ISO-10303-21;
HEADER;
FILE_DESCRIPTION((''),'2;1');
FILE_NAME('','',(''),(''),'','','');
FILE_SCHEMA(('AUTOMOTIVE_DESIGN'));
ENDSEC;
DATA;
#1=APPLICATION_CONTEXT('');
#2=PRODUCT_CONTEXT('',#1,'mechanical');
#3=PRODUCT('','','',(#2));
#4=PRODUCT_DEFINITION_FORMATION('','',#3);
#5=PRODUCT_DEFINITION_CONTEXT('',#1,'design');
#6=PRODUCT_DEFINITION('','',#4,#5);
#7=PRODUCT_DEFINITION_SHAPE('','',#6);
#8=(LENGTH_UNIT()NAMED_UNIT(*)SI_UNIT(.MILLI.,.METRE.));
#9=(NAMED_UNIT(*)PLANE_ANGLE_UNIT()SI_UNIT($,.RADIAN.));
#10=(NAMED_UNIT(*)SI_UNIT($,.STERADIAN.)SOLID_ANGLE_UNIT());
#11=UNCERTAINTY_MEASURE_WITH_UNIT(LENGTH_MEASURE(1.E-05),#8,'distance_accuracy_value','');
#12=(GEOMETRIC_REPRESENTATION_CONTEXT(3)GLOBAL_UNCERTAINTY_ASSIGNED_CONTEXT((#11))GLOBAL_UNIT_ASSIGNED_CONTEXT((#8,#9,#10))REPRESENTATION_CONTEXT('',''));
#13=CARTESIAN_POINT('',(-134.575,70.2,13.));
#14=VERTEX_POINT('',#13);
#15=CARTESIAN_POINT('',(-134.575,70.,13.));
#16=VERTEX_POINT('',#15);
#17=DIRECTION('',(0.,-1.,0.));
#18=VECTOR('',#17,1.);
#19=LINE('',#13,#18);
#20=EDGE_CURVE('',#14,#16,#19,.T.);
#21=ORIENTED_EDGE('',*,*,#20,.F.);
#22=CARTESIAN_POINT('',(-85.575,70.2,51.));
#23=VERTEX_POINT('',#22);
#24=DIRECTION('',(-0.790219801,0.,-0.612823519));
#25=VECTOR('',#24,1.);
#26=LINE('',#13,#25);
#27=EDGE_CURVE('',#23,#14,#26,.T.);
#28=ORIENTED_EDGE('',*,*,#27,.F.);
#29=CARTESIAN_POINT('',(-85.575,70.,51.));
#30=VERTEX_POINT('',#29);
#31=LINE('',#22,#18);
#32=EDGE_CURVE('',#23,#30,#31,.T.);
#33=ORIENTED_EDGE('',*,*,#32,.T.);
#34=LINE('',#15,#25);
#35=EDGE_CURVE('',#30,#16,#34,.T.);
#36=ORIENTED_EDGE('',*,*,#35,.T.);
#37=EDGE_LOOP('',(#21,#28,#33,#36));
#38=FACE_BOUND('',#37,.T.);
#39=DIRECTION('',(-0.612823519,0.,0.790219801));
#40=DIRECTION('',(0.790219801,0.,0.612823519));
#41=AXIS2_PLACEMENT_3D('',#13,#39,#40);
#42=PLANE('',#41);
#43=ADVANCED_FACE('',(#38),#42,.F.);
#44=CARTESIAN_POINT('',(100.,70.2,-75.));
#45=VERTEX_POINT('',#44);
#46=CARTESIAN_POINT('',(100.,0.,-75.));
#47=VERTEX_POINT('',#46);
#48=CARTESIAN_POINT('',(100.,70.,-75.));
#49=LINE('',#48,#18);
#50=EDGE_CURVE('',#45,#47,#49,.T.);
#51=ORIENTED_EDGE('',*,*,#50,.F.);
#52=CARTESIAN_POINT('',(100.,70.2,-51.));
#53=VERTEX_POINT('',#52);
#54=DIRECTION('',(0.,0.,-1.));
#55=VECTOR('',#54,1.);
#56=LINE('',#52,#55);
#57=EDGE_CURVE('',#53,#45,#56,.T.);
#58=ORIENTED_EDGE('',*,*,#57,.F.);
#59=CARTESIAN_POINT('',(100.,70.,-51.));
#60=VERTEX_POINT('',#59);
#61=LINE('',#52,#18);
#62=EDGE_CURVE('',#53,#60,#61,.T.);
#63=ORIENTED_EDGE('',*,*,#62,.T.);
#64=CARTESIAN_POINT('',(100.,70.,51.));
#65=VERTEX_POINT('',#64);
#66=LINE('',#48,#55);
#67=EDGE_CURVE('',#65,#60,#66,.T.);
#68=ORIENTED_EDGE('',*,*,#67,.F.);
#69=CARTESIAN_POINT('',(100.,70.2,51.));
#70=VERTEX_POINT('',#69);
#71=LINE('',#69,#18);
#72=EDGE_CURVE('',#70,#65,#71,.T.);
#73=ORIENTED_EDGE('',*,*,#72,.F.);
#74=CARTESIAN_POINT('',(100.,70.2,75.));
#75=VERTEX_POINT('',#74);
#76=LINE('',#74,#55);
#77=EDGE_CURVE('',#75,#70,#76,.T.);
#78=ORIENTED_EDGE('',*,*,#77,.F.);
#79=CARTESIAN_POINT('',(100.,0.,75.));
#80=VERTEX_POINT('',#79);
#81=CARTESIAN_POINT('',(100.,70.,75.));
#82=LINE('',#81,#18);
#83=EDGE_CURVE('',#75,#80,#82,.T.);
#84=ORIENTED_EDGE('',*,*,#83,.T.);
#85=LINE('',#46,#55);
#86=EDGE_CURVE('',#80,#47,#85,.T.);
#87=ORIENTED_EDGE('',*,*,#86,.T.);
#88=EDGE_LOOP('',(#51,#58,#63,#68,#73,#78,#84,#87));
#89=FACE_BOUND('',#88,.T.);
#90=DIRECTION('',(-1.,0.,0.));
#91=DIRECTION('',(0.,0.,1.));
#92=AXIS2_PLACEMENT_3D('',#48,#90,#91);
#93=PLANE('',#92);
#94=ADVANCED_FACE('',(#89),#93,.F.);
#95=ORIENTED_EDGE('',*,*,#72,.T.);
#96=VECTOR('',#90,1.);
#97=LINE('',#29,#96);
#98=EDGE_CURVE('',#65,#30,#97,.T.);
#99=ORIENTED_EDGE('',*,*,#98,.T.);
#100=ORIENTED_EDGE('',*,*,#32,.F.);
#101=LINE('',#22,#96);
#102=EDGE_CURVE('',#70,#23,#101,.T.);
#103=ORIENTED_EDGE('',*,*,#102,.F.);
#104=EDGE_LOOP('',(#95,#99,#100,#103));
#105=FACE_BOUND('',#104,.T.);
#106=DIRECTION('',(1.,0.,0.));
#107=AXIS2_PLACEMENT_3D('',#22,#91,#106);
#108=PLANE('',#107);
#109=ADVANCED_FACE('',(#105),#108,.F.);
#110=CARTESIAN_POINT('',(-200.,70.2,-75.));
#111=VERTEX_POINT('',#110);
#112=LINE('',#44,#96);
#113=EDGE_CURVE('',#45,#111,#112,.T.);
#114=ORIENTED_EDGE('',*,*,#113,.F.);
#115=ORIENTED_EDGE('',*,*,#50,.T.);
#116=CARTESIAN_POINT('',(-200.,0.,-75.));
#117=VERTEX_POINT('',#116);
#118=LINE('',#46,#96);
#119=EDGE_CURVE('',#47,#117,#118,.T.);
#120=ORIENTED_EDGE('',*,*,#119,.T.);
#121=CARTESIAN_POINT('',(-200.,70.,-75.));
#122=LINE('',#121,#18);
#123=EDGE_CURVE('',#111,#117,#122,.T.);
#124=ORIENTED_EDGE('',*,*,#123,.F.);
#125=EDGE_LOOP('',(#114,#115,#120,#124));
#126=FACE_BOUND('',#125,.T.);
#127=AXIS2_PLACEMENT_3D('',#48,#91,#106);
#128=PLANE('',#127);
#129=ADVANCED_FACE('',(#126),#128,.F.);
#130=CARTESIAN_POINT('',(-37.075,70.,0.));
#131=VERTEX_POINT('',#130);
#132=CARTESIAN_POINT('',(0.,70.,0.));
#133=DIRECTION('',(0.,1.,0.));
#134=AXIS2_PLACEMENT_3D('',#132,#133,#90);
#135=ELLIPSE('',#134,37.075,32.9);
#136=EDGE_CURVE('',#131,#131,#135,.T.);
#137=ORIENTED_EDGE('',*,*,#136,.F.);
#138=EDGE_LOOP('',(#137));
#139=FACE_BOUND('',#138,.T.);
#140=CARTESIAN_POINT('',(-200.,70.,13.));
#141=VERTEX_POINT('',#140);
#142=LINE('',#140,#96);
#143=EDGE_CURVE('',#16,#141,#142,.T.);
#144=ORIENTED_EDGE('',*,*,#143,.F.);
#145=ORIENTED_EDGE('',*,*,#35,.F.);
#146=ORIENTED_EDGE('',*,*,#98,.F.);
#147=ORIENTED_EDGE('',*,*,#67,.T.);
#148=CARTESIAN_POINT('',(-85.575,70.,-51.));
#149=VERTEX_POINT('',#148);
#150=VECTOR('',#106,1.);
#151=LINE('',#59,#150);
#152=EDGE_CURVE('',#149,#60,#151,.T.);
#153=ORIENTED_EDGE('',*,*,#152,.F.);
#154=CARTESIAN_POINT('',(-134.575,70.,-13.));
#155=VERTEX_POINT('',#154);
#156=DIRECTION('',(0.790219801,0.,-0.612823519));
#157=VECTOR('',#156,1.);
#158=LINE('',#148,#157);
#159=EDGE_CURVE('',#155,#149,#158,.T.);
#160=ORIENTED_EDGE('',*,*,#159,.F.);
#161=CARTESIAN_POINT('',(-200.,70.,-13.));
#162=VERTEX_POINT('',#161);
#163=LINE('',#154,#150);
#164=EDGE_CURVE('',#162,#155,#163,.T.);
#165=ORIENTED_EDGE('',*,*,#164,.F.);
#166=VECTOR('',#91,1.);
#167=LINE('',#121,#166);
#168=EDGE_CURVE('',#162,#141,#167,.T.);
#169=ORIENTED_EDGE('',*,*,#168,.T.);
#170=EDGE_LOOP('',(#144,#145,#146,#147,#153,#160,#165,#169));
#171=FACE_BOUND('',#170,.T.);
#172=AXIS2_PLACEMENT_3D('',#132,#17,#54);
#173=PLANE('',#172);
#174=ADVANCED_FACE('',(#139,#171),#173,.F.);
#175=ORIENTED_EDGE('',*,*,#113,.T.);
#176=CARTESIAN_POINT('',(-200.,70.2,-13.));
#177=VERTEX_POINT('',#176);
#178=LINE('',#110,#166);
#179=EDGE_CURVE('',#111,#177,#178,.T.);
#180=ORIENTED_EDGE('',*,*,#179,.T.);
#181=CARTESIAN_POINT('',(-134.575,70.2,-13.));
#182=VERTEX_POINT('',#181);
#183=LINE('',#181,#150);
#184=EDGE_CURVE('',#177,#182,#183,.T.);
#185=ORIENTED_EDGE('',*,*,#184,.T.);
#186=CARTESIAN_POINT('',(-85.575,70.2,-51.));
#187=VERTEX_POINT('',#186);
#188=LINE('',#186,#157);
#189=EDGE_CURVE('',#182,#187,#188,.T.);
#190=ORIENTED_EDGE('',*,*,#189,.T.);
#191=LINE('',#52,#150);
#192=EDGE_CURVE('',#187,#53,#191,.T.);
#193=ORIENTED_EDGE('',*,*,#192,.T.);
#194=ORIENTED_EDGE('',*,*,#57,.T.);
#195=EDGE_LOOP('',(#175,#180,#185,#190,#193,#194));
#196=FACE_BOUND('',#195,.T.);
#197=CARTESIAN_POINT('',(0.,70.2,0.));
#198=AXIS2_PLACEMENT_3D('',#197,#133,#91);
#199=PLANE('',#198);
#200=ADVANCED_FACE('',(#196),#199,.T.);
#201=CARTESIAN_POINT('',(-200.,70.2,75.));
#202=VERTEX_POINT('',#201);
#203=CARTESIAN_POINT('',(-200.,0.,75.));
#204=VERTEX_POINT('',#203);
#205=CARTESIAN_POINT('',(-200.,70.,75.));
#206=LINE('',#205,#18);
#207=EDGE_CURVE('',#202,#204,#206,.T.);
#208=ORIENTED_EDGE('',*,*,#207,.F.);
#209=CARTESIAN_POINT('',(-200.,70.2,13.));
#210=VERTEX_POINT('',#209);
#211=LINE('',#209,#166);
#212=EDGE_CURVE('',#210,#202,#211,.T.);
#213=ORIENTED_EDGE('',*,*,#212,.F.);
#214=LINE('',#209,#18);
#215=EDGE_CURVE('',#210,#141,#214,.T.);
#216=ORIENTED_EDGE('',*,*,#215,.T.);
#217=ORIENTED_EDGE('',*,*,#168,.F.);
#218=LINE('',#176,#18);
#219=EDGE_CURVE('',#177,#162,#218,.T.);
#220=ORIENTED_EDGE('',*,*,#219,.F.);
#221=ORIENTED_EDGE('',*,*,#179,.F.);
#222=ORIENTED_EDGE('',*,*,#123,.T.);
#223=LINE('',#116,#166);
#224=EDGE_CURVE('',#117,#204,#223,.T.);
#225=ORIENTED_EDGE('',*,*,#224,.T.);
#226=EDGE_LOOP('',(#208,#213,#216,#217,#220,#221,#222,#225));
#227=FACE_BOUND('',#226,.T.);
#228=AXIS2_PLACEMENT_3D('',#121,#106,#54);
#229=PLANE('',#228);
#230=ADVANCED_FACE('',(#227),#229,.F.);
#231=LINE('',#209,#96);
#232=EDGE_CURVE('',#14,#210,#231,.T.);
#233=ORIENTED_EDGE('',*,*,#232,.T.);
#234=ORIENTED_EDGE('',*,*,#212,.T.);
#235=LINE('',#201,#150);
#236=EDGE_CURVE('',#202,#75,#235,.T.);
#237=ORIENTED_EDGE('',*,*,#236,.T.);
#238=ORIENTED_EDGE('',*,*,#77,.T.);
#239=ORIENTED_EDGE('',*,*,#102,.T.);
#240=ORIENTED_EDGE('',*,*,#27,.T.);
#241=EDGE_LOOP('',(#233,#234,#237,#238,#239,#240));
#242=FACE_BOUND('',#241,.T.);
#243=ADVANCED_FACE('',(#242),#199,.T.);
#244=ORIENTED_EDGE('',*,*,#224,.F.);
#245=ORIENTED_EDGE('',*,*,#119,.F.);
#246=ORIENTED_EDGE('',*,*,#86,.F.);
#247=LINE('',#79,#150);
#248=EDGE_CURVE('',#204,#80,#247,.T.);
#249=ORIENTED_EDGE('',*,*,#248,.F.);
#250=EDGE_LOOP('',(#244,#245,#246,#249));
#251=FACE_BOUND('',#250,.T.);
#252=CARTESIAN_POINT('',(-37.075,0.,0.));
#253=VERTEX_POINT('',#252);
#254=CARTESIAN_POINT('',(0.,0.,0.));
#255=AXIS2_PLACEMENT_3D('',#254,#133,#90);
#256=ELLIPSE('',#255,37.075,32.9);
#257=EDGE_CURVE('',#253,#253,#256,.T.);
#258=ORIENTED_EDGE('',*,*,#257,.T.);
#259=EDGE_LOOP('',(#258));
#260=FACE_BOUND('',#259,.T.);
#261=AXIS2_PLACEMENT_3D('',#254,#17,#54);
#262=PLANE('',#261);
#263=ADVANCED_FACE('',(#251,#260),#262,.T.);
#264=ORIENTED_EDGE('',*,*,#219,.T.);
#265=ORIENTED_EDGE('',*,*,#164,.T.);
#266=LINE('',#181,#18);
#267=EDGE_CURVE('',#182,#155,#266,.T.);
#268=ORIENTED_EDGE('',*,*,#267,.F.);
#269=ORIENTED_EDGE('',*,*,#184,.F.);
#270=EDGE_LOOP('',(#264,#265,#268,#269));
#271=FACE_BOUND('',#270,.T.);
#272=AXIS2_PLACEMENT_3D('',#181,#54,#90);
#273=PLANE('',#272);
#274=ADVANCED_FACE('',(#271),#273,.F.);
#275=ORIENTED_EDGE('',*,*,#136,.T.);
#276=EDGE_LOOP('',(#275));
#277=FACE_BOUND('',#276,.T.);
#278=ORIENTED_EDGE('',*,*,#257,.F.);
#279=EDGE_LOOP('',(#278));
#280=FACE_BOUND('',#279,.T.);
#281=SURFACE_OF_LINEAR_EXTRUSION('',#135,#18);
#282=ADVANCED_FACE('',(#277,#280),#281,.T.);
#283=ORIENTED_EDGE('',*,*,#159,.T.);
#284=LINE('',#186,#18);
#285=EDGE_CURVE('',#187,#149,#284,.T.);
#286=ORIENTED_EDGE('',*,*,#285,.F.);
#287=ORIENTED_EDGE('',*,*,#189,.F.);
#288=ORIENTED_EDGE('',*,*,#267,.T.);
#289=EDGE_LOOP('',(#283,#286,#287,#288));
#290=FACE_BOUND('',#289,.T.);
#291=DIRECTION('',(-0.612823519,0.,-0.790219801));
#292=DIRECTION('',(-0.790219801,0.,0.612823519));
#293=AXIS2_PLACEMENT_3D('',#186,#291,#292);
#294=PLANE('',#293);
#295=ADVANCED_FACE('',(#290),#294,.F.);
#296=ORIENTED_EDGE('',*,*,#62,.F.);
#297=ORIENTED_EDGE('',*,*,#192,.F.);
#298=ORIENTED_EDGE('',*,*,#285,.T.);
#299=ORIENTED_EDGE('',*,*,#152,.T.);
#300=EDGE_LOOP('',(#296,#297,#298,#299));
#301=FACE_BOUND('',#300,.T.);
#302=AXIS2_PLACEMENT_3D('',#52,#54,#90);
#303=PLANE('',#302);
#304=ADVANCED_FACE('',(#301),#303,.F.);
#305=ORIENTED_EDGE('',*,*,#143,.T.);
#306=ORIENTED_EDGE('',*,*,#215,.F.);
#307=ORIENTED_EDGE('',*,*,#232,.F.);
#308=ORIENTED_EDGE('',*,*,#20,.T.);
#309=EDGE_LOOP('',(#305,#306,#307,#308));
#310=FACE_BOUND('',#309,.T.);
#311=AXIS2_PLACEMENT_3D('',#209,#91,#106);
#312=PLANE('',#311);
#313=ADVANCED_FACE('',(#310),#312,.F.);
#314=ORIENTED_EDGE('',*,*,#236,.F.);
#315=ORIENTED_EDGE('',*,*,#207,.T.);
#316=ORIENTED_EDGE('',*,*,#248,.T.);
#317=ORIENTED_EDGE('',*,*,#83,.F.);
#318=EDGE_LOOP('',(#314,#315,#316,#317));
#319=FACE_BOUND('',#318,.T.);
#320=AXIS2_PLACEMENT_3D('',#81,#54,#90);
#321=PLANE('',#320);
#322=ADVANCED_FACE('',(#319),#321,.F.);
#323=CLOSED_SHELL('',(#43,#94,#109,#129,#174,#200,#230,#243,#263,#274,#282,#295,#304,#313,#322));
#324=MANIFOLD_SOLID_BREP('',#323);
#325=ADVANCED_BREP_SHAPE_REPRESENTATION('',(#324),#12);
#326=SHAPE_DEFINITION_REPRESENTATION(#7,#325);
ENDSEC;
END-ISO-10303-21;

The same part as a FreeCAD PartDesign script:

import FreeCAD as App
import Part
import Sketcher
Q = App.Units.Quantity


def add_polygon(sketch, points):
    """Adds a closed chain of lines whose ends are joined by coincident constraints."""
    first, n = sketch.GeometryCount, len(points)
    for a, b in zip(points, points[1:] + points[:1]):
        sketch.addGeometry(Part.LineSegment(App.Vector(*a, 0), App.Vector(*b, 0)), False)
    for i in range(n):
        sketch.addConstraint(Sketcher.Constraint("Coincident", first + i, 2, first + (i + 1) % n, 1))

doc = App.newDocument("Part")
body = doc.addObject("PartDesign::Body", "Body")

# Sketch on XZ plane
sketch1 = doc.addObject("Sketcher::SketchObject", "Sketch")
body.addObject(sketch1)
sketch1.AttachmentSupport = (doc.XZ_Plane, [""])
sketch1.MapMode = "FlatFace"
add_polygon(sketch1, [(-200, -75), (-200, 75), (100, 75), (100, -75)])  # lines 0-3
sketch1.addGeometry(Part.Ellipse(App.Vector(-37.075, 0, 0), App.Vector(0, -32.9, 0), App.Vector(0, 0, 0)), False)  # 4
sketch1.addConstraint(Sketcher.Constraint("Block", 4))
sketch1.addConstraint(Sketcher.Constraint("Vertical", 0))
sketch1.addConstraint(Sketcher.Constraint("Horizontal", 1))
sketch1.addConstraint(Sketcher.Constraint("Vertical", 2))
sketch1.addConstraint(Sketcher.Constraint("Horizontal", 3))
sketch1.addConstraint(Sketcher.Constraint("DistanceX", 1, 1, 1, 2, Q("300 mm")))
sketch1.addConstraint(Sketcher.Constraint("DistanceY", 0, 1, 0, 2, Q("150 mm")))
sketch1.addConstraint(Sketcher.Constraint("DistanceX", 0, 2, -1, 1, Q("200 mm")))
sketch1.addConstraint(Sketcher.Constraint("DistanceY", -1, 1, 0, 2, Q("75 mm")))
pad1 = doc.addObject("PartDesign::Pad", "Pad")
body.addObject(pad1)
pad1.Profile = sketch1
pad1.Length = 70
pad1.Reversed = True

# Sketch on XZ plane
sketch2 = doc.addObject("Sketcher::SketchObject", "Sketch001")
body.addObject(sketch2)
sketch2.AttachmentSupport = (doc.XZ_Plane, [""])
sketch2.MapMode = "FlatFace"
sketch2.AttachmentOffset = App.Placement(App.Vector(0, 0, -70), App.Rotation())
add_polygon(sketch2, [(-86, -51), (100, -51), (100, -75), (-200, -75), (-200, -13), (-135, -13)])  # lines 0-5
add_polygon(sketch2, [(-135, 13), (-200, 13), (-200, 75), (100, 75), (100, 51), (-86, 51)])  # lines 6-11
sketch2.addConstraint(Sketcher.Constraint("Horizontal", 0))
sketch2.addConstraint(Sketcher.Constraint("Vertical", 1))
sketch2.addConstraint(Sketcher.Constraint("Horizontal", 2))
sketch2.addConstraint(Sketcher.Constraint("Vertical", 3))
sketch2.addConstraint(Sketcher.Constraint("Horizontal", 4))
sketch2.addConstraint(Sketcher.Constraint("Horizontal", 6))
sketch2.addConstraint(Sketcher.Constraint("Vertical", 7))
sketch2.addConstraint(Sketcher.Constraint("Horizontal", 8))
sketch2.addConstraint(Sketcher.Constraint("Vertical", 9))
sketch2.addConstraint(Sketcher.Constraint("Horizontal", 10))
sketch2.addConstraint(Sketcher.Constraint("Symmetric", 3, 2, 6, 2, -1))
sketch2.addConstraint(Sketcher.Constraint("Symmetric", 1, 2, 8, 2, -1))
sketch2.addConstraint(Sketcher.Constraint("Symmetric", 5, 2, 10, 2, -1))
sketch2.addConstraint(Sketcher.Constraint("Vertical", 4, 2, 11, 2))
sketch2.addConstraint(Sketcher.Constraint("DistanceX", 2, 2, 2, 1, Q("300 mm")))
sketch2.addConstraint(Sketcher.Constraint("DistanceY", 1, 2, 1, 1, Q("24 mm")))
sketch2.addConstraint(Sketcher.Constraint("DistanceY", 3, 1, 3, 2, Q("62 mm")))
sketch2.addConstraint(Sketcher.Constraint("DistanceX", -1, 1, 0, 2, Q("100 mm")))
sketch2.addConstraint(Sketcher.Constraint("DistanceY", 0, 2, -1, 1, Q("51 mm")))
sketch2.addConstraint(Sketcher.Constraint("DistanceX", 4, 2, 5, 2, Q("49 mm")))
sketch2.addConstraint(Sketcher.Constraint("DistanceX", 0, 1, 0, 2, Q("185.575 mm")))
pad2 = doc.addObject("PartDesign::Pad", "Pad001")
body.addObject(pad2)
pad2.Profile = sketch2
pad2.Length = 0.2
pad2.Reversed = True

doc.recompute()
